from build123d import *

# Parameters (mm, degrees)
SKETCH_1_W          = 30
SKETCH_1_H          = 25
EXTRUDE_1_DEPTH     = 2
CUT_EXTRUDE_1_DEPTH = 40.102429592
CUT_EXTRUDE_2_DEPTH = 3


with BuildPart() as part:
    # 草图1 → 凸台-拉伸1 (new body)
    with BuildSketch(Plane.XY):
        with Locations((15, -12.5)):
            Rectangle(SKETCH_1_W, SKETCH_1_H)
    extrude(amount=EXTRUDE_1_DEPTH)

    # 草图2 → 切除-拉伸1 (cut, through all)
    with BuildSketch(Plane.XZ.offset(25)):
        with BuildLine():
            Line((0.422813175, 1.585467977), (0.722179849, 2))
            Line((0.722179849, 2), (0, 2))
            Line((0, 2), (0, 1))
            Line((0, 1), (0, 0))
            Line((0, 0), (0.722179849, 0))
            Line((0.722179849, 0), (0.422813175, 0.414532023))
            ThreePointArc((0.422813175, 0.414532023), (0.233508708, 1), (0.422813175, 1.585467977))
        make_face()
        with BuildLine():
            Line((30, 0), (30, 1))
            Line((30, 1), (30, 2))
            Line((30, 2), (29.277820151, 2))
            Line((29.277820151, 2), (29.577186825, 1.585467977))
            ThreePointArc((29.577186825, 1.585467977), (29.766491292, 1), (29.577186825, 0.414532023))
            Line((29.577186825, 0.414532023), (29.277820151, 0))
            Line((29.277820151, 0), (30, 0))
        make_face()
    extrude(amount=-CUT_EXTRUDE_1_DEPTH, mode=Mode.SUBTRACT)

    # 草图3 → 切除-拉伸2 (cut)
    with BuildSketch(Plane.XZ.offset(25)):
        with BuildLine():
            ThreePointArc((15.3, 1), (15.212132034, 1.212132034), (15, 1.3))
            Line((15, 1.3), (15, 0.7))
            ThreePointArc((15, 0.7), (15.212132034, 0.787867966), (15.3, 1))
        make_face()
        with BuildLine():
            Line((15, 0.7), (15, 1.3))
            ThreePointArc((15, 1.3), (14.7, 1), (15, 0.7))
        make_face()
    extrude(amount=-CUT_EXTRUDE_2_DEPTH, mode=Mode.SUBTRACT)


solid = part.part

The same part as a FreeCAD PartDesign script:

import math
import FreeCAD as App
import Part
import Sketcher

V = App.Vector


def add_polygon(sketch, points):
    """Adds a closed chain of lines whose ends are joined by coincident constraints."""
    first, n = sketch.GeometryCount, len(points)
    for a, b in zip(points, points[1:] + points[:1]):
        sketch.addGeometry(Part.LineSegment(App.Vector(*a, 0), App.Vector(*b, 0)), False)
    for i in range(n):
        sketch.addConstraint(Sketcher.Constraint("Coincident", first + i, 2, first + (i + 1) % n, 1))

doc = App.newDocument("Part")
body = doc.addObject("PartDesign::Body", "Body")

sketch1 = body.newObject("Sketcher::SketchObject", "Sketch")
sketch1.AttachmentSupport = (doc.getObject("XY_Plane"), [""])
sketch1.MapMode = "FlatFace"
add_polygon(sketch1, [(0, 0), (0, -25), (30, -25), (30, 0)])
sketch1.addConstraint([
    Sketcher.Constraint("Vertical", 0),
    Sketcher.Constraint("Horizontal", 1),
    Sketcher.Constraint("Vertical", 2),
    Sketcher.Constraint("Horizontal", 3),
    Sketcher.Constraint("Coincident", 3, 2, -1, 1),
    Sketcher.Constraint("DistanceX", 1, 1, 1, 2, 30.0),
    Sketcher.Constraint("DistanceY", 0, 2, 0, 1, 25.0),
])
pad1 = body.newObject("PartDesign::Pad", "Pad")
pad1.Profile = sketch1
pad1.Length = 2

sketch2 = body.newObject("Sketcher::SketchObject", "Sketch001")
sketch2.AttachmentSupport = (doc.getObject("XZ_Plane"), [""])
sketch2.MapMode = "FlatFace"
sketch2.AttachmentOffset = App.Placement(V(0, 0, 25), App.Rotation())
sketch2.addGeometry([
    Part.LineSegment(V(0.4, 1.6, 0), V(0.7, 2, 0)),
    Part.LineSegment(V(0.7, 2, 0), V(0, 2, 0)),
    Part.LineSegment(V(0, 2, 0), V(0, 0, 0)),
    Part.LineSegment(V(0, 0, 0), V(0.7, 0, 0)),
    Part.LineSegment(V(0.7, 0, 0), V(0.4, 0.4, 0)),
    Part.ArcOfCircle(Part.Circle(V(1.2, 1, 0), V(0, 0, 1), 1), math.radians(144), math.radians(216)),
    Part.LineSegment(V(30, 0, 0), V(30, 2, 0)),
    Part.LineSegment(V(30, 2, 0), V(29.3, 2, 0)),
    Part.LineSegment(V(29.3, 2, 0), V(29.6, 1.6, 0)),
    Part.ArcOfCircle(Part.Circle(V(28.8, 1, 0), V(0, 0, 1), 1), math.radians(-36), math.radians(36)),
    Part.LineSegment(V(29.6, 0.4, 0), V(29.3, 0, 0)),
    Part.LineSegment(V(29.3, 0, 0), V(30, 0, 0)),
], False)
sketch2.addConstraint([
    Sketcher.Constraint("Coincident", 0, 2, 1, 1),
    Sketcher.Constraint("Coincident", 1, 2, 2, 1),
    Sketcher.Constraint("Coincident", 2, 2, 3, 1),
    Sketcher.Constraint("Coincident", 3, 2, 4, 1),
    Sketcher.Constraint("Tangent", 4, 2, 5, 2),
    Sketcher.Constraint("Tangent", 5, 1, 0, 1),
    Sketcher.Constraint("Coincident", 6, 2, 7, 1),
    Sketcher.Constraint("Coincident", 7, 2, 8, 1),
    Sketcher.Constraint("Tangent", 8, 2, 9, 2),
    Sketcher.Constraint("Tangent", 9, 1, 10, 1),
    Sketcher.Constraint("Coincident", 10, 2, 11, 1),
    Sketcher.Constraint("Coincident", 11, 2, 6, 1),
    Sketcher.Constraint("Horizontal", 1),
    Sketcher.Constraint("Vertical", 2),
    Sketcher.Constraint("Horizontal", 3),
    Sketcher.Constraint("Vertical", 6),
    Sketcher.Constraint("Horizontal", 7),
    Sketcher.Constraint("Horizontal", 11),
    Sketcher.Constraint("Coincident", 2, 2, -1, 1),
    Sketcher.Constraint("Equal", 5, 9),
    Sketcher.Constraint("PointOnObject", 10, 2, -1),
    Sketcher.Constraint("Parallel", 4, 8),
    Sketcher.Constraint("Parallel", 0, 10),
    Sketcher.Constraint("Horizontal", 5, 3, 9, 3),
    Sketcher.Constraint("Horizontal", 1, 2, 6, 2),
    Sketcher.Constraint("Horizontal", 5, 1, 8, 2),
    Sketcher.Constraint("Vertical", 0, 2, 3, 2),
    Sketcher.Constraint("Equal", 3, 7),
    Sketcher.Constraint("Radius", 5, 1.0),
    Sketcher.Constraint("DistanceY", 2, 2, 2, 1, 2.0),
    Sketcher.Constraint("DistanceX", -1, 1, 6, 2, 30.0),
    Sketcher.Constraint("DistanceX", 1, 2, 1, 1, 0.72218),
    Sketcher.Constraint("Distance", 0, 0.511329),
])
pocket1 = body.newObject("PartDesign::Pocket", "Pocket")
pocket1.Profile = sketch2
pocket1.Type = "ThroughAll"

sketch3 = body.newObject("Sketcher::SketchObject", "Sketch002")
sketch3.AttachmentSupport = (doc.getObject("XZ_Plane"), [""])
sketch3.MapMode = "FlatFace"
sketch3.AttachmentOffset = App.Placement(V(0, 0, 25), App.Rotation())
sketch3.addGeometry([
    Part.ArcOfCircle(Part.Circle(V(15, 1, 0), V(0, 0, 1), 0.3), math.radians(0), math.radians(90)),
    Part.ArcOfCircle(Part.Circle(V(15, 1, 0), V(0, 0, 1), 0.3), math.radians(90), math.radians(270)),
    Part.ArcOfCircle(Part.Circle(V(15, 1, 0), V(0, 0, 1), 0.3), math.radians(-90), math.radians(0)),
], False)
sketch3.addConstraint([
    Sketcher.Constraint("Tangent", 0, 2, 1, 1),
    Sketcher.Constraint("Tangent", 1, 2, 2, 1),
    Sketcher.Constraint("Tangent", 2, 2, 0, 1),
    Sketcher.Constraint("Horizontal", 1, 3, 2, 2),
    Sketcher.Constraint("Vertical", 2, 3, 0, 2),
    Sketcher.Constraint("Vertical", 0, 2, 1, 2),
    Sketcher.Constraint("Radius", 0, 0.3),
    Sketcher.Constraint("DistanceX", -1, 1, 0, 3, 15.0),
    Sketcher.Constraint("DistanceY", -1, 1, 0, 3, 1.0),
])
pocket2 = body.newObject("PartDesign::Pocket", "Pocket001")
pocket2.Profile = sketch3
pocket2.Length = 3

doc.recompute()
